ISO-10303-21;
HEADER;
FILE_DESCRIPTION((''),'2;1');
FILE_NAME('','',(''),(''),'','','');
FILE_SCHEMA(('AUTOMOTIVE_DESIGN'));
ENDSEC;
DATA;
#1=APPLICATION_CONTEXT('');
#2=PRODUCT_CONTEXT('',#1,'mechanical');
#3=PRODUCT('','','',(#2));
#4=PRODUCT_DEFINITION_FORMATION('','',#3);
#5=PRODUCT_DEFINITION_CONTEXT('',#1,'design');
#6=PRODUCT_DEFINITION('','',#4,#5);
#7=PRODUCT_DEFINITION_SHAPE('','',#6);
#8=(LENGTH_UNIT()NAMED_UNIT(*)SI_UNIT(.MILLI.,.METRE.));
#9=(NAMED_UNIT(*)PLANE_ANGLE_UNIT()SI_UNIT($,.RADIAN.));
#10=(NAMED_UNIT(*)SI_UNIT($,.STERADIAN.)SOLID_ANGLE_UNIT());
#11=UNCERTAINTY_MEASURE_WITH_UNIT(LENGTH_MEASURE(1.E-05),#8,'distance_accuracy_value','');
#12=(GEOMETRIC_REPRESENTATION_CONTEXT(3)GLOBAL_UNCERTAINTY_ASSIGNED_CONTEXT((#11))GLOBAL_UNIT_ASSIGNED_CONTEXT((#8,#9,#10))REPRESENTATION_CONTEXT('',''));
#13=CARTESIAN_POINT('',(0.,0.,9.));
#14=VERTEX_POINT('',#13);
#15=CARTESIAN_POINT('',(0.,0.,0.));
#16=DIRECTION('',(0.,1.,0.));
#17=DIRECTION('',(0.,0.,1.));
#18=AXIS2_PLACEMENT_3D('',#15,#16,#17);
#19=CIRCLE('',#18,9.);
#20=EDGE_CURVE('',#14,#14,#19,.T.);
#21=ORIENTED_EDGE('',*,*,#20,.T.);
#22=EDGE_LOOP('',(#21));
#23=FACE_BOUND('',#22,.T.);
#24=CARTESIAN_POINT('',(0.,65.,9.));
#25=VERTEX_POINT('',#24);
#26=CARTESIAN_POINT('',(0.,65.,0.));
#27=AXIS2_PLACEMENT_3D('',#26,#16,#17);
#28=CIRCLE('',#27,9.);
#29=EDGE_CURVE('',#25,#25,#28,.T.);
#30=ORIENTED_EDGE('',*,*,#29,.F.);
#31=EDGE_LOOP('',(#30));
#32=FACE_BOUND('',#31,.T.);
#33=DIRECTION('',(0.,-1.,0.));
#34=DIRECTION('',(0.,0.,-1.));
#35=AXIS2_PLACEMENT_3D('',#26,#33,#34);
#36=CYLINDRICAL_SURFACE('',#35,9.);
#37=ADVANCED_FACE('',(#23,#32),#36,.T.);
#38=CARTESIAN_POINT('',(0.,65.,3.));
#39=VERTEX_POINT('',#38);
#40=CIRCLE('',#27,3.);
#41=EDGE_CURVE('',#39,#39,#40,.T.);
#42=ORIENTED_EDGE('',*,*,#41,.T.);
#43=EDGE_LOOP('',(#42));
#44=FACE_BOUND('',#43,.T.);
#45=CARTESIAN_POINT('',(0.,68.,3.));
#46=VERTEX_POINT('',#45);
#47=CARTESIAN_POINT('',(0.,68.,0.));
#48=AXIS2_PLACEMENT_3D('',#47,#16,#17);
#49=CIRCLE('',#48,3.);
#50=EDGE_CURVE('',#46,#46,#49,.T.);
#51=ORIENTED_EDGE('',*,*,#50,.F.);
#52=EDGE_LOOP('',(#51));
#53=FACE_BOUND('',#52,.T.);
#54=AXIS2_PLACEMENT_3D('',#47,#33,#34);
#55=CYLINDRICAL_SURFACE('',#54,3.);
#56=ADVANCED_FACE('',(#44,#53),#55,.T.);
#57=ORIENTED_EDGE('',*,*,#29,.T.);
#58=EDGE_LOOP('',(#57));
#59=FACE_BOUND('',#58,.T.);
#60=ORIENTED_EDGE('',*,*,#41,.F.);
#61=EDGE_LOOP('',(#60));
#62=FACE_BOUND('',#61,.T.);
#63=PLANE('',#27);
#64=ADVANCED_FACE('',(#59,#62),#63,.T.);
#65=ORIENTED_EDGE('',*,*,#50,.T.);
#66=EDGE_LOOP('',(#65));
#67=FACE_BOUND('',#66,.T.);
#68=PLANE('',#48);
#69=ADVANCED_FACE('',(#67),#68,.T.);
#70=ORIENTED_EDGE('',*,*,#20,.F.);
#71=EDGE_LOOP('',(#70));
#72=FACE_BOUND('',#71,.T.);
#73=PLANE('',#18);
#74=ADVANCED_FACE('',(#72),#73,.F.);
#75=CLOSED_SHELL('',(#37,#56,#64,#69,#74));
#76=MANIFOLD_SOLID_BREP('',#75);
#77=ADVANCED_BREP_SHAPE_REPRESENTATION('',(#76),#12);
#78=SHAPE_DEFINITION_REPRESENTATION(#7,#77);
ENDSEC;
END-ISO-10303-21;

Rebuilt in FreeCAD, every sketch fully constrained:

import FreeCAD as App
import Part
import Sketcher
from FreeCAD import Vector

doc = App.newDocument("Part")
body = doc.addObject("PartDesign::Body", "Body")

sketch1 = body.newObject("Sketcher::SketchObject", "Sketch")
sketch1.AttachmentSupport = (doc.getObject("XZ_Plane"), [""])
sketch1.MapMode = "FlatFace"
sketch1.addGeometry(Part.Circle(Vector(0, 0, 0), Vector(0, 0, 1), 9), False)
sketch1.addConstraint(Sketcher.Constraint("Coincident", 0, 3, -1, 1))
sketch1.addConstraint(Sketcher.Constraint("Diameter", 0, 18.0))
pad1 = body.newObject("PartDesign::Pad", "Pad")
pad1.Profile = sketch1
pad1.Length = 65
pad1.Reversed = True

sketch2 = body.newObject("Sketcher::SketchObject", "Sketch001")
sketch2.AttachmentSupport = (doc.getObject("XZ_Plane"), [""])
sketch2.MapMode = "FlatFace"
sketch2.AttachmentOffset = App.Placement(Vector(0, 0, -65), App.Rotation())
sketch2.addGeometry(Part.Circle(Vector(0, 0, 0), Vector(0, 0, 1), 3), False)
sketch2.addConstraint(Sketcher.Constraint("Coincident", 0, 3, -1, 1))
sketch2.addConstraint(Sketcher.Constraint("Diameter", 0, 6.0))
pad2 = body.newObject("PartDesign::Pad", "Pad001")
pad2.Profile = sketch2
pad2.Length = 3
pad2.Reversed = True

doc.recompute()
